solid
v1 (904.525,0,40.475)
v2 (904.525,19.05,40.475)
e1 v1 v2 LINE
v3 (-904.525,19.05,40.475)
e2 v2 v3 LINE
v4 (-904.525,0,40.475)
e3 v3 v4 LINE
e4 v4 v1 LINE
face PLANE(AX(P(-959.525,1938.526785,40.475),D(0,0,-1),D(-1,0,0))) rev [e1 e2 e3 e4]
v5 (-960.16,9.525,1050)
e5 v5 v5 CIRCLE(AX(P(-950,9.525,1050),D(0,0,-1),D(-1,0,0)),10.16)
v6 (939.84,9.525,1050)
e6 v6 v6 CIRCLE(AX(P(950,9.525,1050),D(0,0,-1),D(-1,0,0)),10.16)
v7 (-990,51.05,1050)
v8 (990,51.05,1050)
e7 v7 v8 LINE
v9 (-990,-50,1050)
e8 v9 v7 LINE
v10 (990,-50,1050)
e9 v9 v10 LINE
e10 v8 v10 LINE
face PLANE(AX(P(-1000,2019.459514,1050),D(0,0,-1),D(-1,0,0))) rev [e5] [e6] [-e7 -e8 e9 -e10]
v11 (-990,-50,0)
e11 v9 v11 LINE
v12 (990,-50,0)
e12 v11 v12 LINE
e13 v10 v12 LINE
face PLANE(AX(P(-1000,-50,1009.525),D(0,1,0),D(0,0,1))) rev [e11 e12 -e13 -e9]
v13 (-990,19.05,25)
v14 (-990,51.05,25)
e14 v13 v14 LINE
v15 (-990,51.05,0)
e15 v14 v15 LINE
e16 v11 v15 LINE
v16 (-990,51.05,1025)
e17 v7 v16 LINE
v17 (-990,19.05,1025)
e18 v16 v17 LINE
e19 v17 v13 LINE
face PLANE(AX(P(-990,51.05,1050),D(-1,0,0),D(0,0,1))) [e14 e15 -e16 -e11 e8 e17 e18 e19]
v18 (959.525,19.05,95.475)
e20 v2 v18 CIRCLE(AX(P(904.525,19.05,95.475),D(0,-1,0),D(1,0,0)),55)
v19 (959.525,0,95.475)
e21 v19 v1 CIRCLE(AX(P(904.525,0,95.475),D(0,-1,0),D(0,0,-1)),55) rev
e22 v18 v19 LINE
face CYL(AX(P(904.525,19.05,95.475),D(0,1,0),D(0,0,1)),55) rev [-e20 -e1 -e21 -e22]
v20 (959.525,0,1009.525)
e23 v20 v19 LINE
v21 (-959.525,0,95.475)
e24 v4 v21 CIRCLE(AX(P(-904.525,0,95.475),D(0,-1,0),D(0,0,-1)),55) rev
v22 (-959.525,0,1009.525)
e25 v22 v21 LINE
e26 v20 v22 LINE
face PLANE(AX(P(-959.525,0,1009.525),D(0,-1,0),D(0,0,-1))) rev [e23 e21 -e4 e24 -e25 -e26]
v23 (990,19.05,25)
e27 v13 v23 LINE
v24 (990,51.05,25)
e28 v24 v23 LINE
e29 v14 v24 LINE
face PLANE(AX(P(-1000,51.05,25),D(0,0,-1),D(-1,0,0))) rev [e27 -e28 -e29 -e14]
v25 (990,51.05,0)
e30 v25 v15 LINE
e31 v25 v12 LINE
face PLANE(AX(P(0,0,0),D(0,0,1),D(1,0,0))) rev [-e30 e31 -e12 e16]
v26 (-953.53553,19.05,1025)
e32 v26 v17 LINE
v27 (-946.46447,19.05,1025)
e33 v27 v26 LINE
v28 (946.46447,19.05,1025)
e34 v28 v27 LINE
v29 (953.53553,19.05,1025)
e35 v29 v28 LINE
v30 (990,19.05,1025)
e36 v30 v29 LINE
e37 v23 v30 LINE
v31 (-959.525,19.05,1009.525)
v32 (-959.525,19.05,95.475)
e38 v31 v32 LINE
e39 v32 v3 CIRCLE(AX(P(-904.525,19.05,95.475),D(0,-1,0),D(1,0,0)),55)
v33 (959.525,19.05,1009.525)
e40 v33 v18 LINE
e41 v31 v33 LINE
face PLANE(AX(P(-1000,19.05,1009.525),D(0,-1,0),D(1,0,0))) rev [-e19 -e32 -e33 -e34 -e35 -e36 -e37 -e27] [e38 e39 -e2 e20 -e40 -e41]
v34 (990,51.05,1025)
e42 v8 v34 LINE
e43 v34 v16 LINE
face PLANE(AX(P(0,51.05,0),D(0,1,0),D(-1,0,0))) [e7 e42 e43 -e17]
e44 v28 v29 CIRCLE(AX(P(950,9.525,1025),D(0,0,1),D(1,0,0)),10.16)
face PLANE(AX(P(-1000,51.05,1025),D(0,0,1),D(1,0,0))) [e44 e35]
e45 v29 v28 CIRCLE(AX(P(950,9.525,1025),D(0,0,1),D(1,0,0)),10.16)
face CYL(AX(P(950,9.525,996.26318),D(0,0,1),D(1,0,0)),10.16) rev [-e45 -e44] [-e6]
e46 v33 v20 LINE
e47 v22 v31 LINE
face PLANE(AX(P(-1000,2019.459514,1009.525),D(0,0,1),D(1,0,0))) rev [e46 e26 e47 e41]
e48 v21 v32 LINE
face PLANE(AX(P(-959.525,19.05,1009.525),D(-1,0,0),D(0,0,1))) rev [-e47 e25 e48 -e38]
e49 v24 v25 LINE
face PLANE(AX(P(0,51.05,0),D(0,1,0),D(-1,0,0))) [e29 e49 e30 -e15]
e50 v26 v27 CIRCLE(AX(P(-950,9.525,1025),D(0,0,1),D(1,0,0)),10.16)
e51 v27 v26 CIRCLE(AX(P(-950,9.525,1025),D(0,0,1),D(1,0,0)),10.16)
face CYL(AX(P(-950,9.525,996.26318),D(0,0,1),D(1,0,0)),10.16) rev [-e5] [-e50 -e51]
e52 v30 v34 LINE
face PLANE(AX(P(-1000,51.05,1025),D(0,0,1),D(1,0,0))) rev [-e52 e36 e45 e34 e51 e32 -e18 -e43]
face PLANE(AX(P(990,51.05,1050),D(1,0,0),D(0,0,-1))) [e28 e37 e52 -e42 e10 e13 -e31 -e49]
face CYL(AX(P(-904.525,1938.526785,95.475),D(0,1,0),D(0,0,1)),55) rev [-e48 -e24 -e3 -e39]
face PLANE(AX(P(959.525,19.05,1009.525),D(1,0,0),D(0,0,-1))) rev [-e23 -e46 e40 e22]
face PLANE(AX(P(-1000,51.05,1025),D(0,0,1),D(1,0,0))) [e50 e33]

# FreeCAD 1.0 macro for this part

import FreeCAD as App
import Part
import Sketcher
from FreeCAD import Vector
Q = App.Units.Quantity


def edges_at(feature, points):
    """Names of the edges that pass closest to the given points."""
    edges = feature.Shape.Edges
    near = lambda p: min(range(len(edges)), key=lambda i: edges[i].distToShape(Part.Vertex(*p))[0])
    return sorted({f"Edge{near(p) + 1}" for p in points})

doc = App.newDocument("Part")
body = doc.addObject("PartDesign::Body", "Body")

sketch1 = doc.addObject("Sketcher::SketchObject", "Sketch")
body.addObject(sketch1)
sketch1.AttachmentSupport = (doc.XY_Plane, [""])
sketch1.MapMode = "FlatFace"
sketch1.addGeometry([
    Part.LineSegment(Vector(960, 0, 0), Vector(-960, 0, 0)),
    Part.LineSegment(Vector(-960, 0, 0), Vector(-960, 19, 0)),
    Part.LineSegment(Vector(-960, 19, 0), Vector(-1000, 19, 0)),
    Part.LineSegment(Vector(-1000, 19, 0), Vector(-1000, -50, 0)),
    Part.LineSegment(Vector(-1000, -50, 0), Vector(1000, -50, 0)),
    Part.LineSegment(Vector(1000, -50, 0), Vector(1000, 19, 0)),
    Part.LineSegment(Vector(1000, 19, 0), Vector(960, 19, 0)),
    Part.LineSegment(Vector(960, 19, 0), Vector(960, 0, 0)),
], False)
sketch1.addConstraint([
    Sketcher.Constraint("Coincident", 0, 2, 1, 1),
    Sketcher.Constraint("Coincident", 1, 2, 2, 1),
    Sketcher.Constraint("Coincident", 2, 2, 3, 1),
    Sketcher.Constraint("Coincident", 3, 2, 4, 1),
    Sketcher.Constraint("Coincident", 4, 2, 5, 1),
    Sketcher.Constraint("Coincident", 5, 2, 6, 1),
    Sketcher.Constraint("Coincident", 6, 2, 7, 1),
    Sketcher.Constraint("Coincident", 7, 2, 0, 1),
    Sketcher.Constraint("Horizontal", 0),
    Sketcher.Constraint("Vertical", 1),
    Sketcher.Constraint("Horizontal", 2),
    Sketcher.Constraint("Vertical", 3),
    Sketcher.Constraint("Horizontal", 4),
    Sketcher.Constraint("Vertical", 5),
    Sketcher.Constraint("Horizontal", 6),
    Sketcher.Constraint("Vertical", 7),
    Sketcher.Constraint("Symmetric", 0, 2, 7, 2, -1, 1),
    Sketcher.Constraint("Symmetric", 2, 2, 5, 2, -2),
    Sketcher.Constraint("DistanceX", 4, 1, 4, 2, Q("2000 mm")),
    Sketcher.Constraint("DistanceY", 3, 2, -1, 1, Q("50 mm")),
    Sketcher.Constraint("DistanceX", 0, 2, 0, 1, Q("1919.05 mm")),
    Sketcher.Constraint("DistanceY", 1, 1, 1, 2, Q("19.05 mm")),
])
pad1 = doc.addObject("PartDesign::Pad", "Pad")
body.addObject(pad1)
pad1.Profile = sketch1
pad1.Length = 1009.525

sketch2 = doc.addObject("Sketcher::SketchObject", "Sketch001")
body.addObject(sketch2)
sketch2.AttachmentSupport = (doc.XZ_Plane, [""])
sketch2.MapMode = "FlatFace"
sketch2.addGeometry([
    Part.LineSegment(Vector(-960, 0, 0), Vector(-960, 40, 0)),
    Part.LineSegment(Vector(-960, 40, 0), Vector(960, 40, 0)),
    Part.LineSegment(Vector(960, 40, 0), Vector(960, 0, 0)),
    Part.LineSegment(Vector(960, 0, 0), Vector(-960, 0, 0)),
], False)
sketch2.addConstraint([
    Sketcher.Constraint("Coincident", 0, 2, 1, 1),
    Sketcher.Constraint("Coincident", 1, 2, 2, 1),
    Sketcher.Constraint("Coincident", 2, 2, 3, 1),
    Sketcher.Constraint("Coincident", 3, 2, 0, 1),
    Sketcher.Constraint("Vertical", 0),
    Sketcher.Constraint("Horizontal", 1),
    Sketcher.Constraint("Vertical", 2),
    Sketcher.Constraint("Horizontal", 3),
    Sketcher.Constraint("Symmetric", 2, 2, 3, 2, -1, 1),
    Sketcher.Constraint("DistanceX", 1, 1, 1, 2, Q("1919.05 mm")),
    Sketcher.Constraint("DistanceY", 0, 1, 0, 2, Q("40.475 mm")),
])
pad2 = doc.addObject("PartDesign::Pad", "Pad001")
body.addObject(pad2)
pad2.Profile = sketch2
pad2.Length = 19.05
pad2.Reversed = True
doc.recompute()

fillet = doc.addObject("PartDesign::Fillet", "Fillet")
body.addObject(fillet)
fillet.Base = (pad2, edges_at(pad2, [(959.525, 9.525, 40.475), (-959.525, 9.525, 40.475)]))
fillet.Radius = 55

sketch3 = doc.addObject("Sketcher::SketchObject", "Sketch002")
body.addObject(sketch3)
sketch3.AttachmentSupport = (doc.XZ_Plane, [""])
sketch3.MapMode = "FlatFace"
sketch3.AttachmentOffset = App.Placement(Vector(0, 0, 50), App.Rotation())
sketch3.addGeometry([
    Part.LineSegment(Vector(-1000, 1010, 0), Vector(-1000, 1050, 0)),
    Part.LineSegment(Vector(-1000, 1050, 0), Vector(1000, 1050, 0)),
    Part.LineSegment(Vector(1000, 1050, 0), Vector(1000, 1010, 0)),
    Part.LineSegment(Vector(1000, 1010, 0), Vector(-1000, 1010, 0)),
], False)
sketch3.addConstraint([
    Sketcher.Constraint("Coincident", 0, 2, 1, 1),
    Sketcher.Constraint("Coincident", 1, 2, 2, 1),
    Sketcher.Constraint("Coincident", 2, 2, 3, 1),
    Sketcher.Constraint("Coincident", 3, 2, 0, 1),
    Sketcher.Constraint("Vertical", 0),
    Sketcher.Constraint("Horizontal", 1),
    Sketcher.Constraint("Vertical", 2),
    Sketcher.Constraint("Horizontal", 3),
    Sketcher.Constraint("DistanceX", 1, 1, 1, 2, Q("2000 mm")),
    Sketcher.Constraint("DistanceX", 0, 2, -1, 1, Q("1000 mm")),
    Sketcher.Constraint("DistanceY", -1, 1, 0, 2, Q("1050 mm")),
    Sketcher.Constraint("DistanceY", 0, 1, 0, 2, Q("40.475 mm")),
])
pad3 = doc.addObject("PartDesign::Pad", "Pad002")
body.addObject(pad3)
pad3.Profile = sketch3
pad3.Length = 69.05
pad3.Reversed = True

sketch4 = doc.addObject("Sketcher::SketchObject", "Sketch003")
body.addObject(sketch4)
sketch4.AttachmentSupport = (doc.XZ_Plane, [""])
sketch4.MapMode = "FlatFace"
sketch4.AttachmentOffset = App.Placement(Vector(0, 0, -19.05), App.Rotation())
sketch4.addGeometry([
    Part.LineSegment(Vector(-1000, 0, 0), Vector(-1000, 25, 0)),
    Part.LineSegment(Vector(-1000, 25, 0), Vector(1000, 25, 0)),
    Part.LineSegment(Vector(1000, 25, 0), Vector(1000, 0, 0)),
    Part.LineSegment(Vector(1000, 0, 0), Vector(-1000, 0, 0)),
    Part.LineSegment(Vector(-1000, 1025, 0), Vector(-1000, 1050, 0)),
    Part.LineSegment(Vector(-1000, 1050, 0), Vector(1000, 1050, 0)),
    Part.LineSegment(Vector(1000, 1050, 0), Vector(1000, 1025, 0)),
    Part.LineSegment(Vector(1000, 1025, 0), Vector(-1000, 1025, 0)),
], False)
sketch4.addConstraint([
    Sketcher.Constraint("Coincident", 0, 2, 1, 1),
    Sketcher.Constraint("Coincident", 1, 2, 2, 1),
    Sketcher.Constraint("Coincident", 2, 2, 3, 1),
    Sketcher.Constraint("Coincident", 3, 2, 0, 1),
    Sketcher.Constraint("Coincident", 4, 2, 5, 1),
    Sketcher.Constraint("Coincident", 5, 2, 6, 1),
    Sketcher.Constraint("Coincident", 6, 2, 7, 1),
    Sketcher.Constraint("Coincident", 7, 2, 4, 1),
    Sketcher.Constraint("Vertical", 0),
    Sketcher.Constraint("Horizontal", 1),
    Sketcher.Constraint("Vertical", 2),
    Sketcher.Constraint("Horizontal", 3),
    Sketcher.Constraint("Vertical", 4),
    Sketcher.Constraint("Horizontal", 5),
    Sketcher.Constraint("Vertical", 6),
    Sketcher.Constraint("Horizontal", 7),
    Sketcher.Constraint("Symmetric", 2, 2, 3, 2, -1, 1),
    Sketcher.Constraint("Vertical", 3, 2, 4, 2),
    Sketcher.Constraint("Vertical", 2, 2, 5, 2),
    Sketcher.Constraint("Equal", 2, 4),
    Sketcher.Constraint("DistanceX", 1, 1, 1, 2, Q("2000 mm")),
    Sketcher.Constraint("DistanceY", 0, 1, 0, 2, Q("25 mm")),
    Sketcher.Constraint("DistanceY", -1, 1, 4, 2, Q("1050 mm")),
])
pad4 = doc.addObject("PartDesign::Pad", "Pad003")
body.addObject(pad4)
pad4.Profile = sketch4
pad4.Length = 32
pad4.Reversed = True

sketch5 = doc.addObject("Sketcher::SketchObject", "Sketch004")
body.addObject(sketch5)
sketch5.AttachmentSupport = (doc.XY_Plane, [""])
sketch5.MapMode = "FlatFace"
sketch5.AttachmentOffset = App.Placement(Vector(0, 0, 1050), App.Rotation())
sketch5.addGeometry([
    Part.Circle(Vector(-950, 10, 0), Vector(0, 0, 1), 10),
    Part.Circle(Vector(950, 10, 0), Vector(0, 0, 1), 10),
], False)
sketch5.addConstraint([
    Sketcher.Constraint("Equal", 0, 1),
    Sketcher.Constraint("Symmetric", 0, 3, 1, 3, -2),
    Sketcher.Constraint("Diameter", 0, Q("20.32 mm")),
    Sketcher.Constraint("DistanceX", 0, 3, -1, 1, Q("950 mm")),
    Sketcher.Constraint("DistanceY", -1, 1, 0, 3, Q("9.525 mm")),
])
pocket1 = doc.addObject("PartDesign::Pocket", "Pocket")
body.addObject(pocket1)
pocket1.Profile = sketch5
pocket1.Length = 25

sketch6 = doc.addObject("Sketcher::SketchObject", "Sketch005")
body.addObject(sketch6)
sketch6.AttachmentSupport = (doc.XY_Plane, [""])
sketch6.MapMode = "FlatFace"
sketch6.addGeometry([
    Part.LineSegment(Vector(-1000, 51, 0), Vector(-1000, -50, 0)),
    Part.LineSegment(Vector(-1000, -50, 0), Vector(-990, -50, 0)),
    Part.LineSegment(Vector(-990, -50, 0), Vector(-990, 51, 0)),
    Part.LineSegment(Vector(-990, 51, 0), Vector(-1000, 51, 0)),
    Part.LineSegment(Vector(990, 51, 0), Vector(990, -50, 0)),
    Part.LineSegment(Vector(990, -50, 0), Vector(1000, -50, 0)),
    Part.LineSegment(Vector(1000, -50, 0), Vector(1000, 51, 0)),
    Part.LineSegment(Vector(1000, 51, 0), Vector(990, 51, 0)),
], False)
sketch6.addConstraint([
    Sketcher.Constraint("Coincident", 0, 2, 1, 1),
    Sketcher.Constraint("Coincident", 1, 2, 2, 1),
    Sketcher.Constraint("Coincident", 2, 2, 3, 1),
    Sketcher.Constraint("Coincident", 3, 2, 0, 1),
    Sketcher.Constraint("Coincident", 4, 2, 5, 1),
    Sketcher.Constraint("Coincident", 5, 2, 6, 1),
    Sketcher.Constraint("Coincident", 6, 2, 7, 1),
    Sketcher.Constraint("Coincident", 7, 2, 4, 1),
    Sketcher.Constraint("Vertical", 0),
    Sketcher.Constraint("Horizontal", 1),
    Sketcher.Constraint("Vertical", 2),
    Sketcher.Constraint("Horizontal", 3),
    Sketcher.Constraint("Vertical", 4),
    Sketcher.Constraint("Horizontal", 5),
    Sketcher.Constraint("Vertical", 6),
    Sketcher.Constraint("Horizontal", 7),
    Sketcher.Constraint("Symmetric", 1, 2, 4, 2, -2),
    Sketcher.Constraint("Symmetric", 3, 2, 6, 2, -2),
    Sketcher.Constraint("DistanceX", 1, 1, 1, 2, Q("10 mm")),
    Sketcher.Constraint("DistanceX", 0, 2, -1, 1, Q("1000 mm")),
    Sketcher.Constraint("DistanceY", 0, 2, -1, 1, Q("50 mm")),
    Sketcher.Constraint("DistanceY", 0, 2, 0, 1, Q("101.05 mm")),
])
pocket2 = doc.addObject("PartDesign::Pocket", "Pocket001")
body.addObject(pocket2)
pocket2.Profile = sketch6
pocket2.Type = "ThroughAll"
pocket2.Reversed = True

doc.recompute()
